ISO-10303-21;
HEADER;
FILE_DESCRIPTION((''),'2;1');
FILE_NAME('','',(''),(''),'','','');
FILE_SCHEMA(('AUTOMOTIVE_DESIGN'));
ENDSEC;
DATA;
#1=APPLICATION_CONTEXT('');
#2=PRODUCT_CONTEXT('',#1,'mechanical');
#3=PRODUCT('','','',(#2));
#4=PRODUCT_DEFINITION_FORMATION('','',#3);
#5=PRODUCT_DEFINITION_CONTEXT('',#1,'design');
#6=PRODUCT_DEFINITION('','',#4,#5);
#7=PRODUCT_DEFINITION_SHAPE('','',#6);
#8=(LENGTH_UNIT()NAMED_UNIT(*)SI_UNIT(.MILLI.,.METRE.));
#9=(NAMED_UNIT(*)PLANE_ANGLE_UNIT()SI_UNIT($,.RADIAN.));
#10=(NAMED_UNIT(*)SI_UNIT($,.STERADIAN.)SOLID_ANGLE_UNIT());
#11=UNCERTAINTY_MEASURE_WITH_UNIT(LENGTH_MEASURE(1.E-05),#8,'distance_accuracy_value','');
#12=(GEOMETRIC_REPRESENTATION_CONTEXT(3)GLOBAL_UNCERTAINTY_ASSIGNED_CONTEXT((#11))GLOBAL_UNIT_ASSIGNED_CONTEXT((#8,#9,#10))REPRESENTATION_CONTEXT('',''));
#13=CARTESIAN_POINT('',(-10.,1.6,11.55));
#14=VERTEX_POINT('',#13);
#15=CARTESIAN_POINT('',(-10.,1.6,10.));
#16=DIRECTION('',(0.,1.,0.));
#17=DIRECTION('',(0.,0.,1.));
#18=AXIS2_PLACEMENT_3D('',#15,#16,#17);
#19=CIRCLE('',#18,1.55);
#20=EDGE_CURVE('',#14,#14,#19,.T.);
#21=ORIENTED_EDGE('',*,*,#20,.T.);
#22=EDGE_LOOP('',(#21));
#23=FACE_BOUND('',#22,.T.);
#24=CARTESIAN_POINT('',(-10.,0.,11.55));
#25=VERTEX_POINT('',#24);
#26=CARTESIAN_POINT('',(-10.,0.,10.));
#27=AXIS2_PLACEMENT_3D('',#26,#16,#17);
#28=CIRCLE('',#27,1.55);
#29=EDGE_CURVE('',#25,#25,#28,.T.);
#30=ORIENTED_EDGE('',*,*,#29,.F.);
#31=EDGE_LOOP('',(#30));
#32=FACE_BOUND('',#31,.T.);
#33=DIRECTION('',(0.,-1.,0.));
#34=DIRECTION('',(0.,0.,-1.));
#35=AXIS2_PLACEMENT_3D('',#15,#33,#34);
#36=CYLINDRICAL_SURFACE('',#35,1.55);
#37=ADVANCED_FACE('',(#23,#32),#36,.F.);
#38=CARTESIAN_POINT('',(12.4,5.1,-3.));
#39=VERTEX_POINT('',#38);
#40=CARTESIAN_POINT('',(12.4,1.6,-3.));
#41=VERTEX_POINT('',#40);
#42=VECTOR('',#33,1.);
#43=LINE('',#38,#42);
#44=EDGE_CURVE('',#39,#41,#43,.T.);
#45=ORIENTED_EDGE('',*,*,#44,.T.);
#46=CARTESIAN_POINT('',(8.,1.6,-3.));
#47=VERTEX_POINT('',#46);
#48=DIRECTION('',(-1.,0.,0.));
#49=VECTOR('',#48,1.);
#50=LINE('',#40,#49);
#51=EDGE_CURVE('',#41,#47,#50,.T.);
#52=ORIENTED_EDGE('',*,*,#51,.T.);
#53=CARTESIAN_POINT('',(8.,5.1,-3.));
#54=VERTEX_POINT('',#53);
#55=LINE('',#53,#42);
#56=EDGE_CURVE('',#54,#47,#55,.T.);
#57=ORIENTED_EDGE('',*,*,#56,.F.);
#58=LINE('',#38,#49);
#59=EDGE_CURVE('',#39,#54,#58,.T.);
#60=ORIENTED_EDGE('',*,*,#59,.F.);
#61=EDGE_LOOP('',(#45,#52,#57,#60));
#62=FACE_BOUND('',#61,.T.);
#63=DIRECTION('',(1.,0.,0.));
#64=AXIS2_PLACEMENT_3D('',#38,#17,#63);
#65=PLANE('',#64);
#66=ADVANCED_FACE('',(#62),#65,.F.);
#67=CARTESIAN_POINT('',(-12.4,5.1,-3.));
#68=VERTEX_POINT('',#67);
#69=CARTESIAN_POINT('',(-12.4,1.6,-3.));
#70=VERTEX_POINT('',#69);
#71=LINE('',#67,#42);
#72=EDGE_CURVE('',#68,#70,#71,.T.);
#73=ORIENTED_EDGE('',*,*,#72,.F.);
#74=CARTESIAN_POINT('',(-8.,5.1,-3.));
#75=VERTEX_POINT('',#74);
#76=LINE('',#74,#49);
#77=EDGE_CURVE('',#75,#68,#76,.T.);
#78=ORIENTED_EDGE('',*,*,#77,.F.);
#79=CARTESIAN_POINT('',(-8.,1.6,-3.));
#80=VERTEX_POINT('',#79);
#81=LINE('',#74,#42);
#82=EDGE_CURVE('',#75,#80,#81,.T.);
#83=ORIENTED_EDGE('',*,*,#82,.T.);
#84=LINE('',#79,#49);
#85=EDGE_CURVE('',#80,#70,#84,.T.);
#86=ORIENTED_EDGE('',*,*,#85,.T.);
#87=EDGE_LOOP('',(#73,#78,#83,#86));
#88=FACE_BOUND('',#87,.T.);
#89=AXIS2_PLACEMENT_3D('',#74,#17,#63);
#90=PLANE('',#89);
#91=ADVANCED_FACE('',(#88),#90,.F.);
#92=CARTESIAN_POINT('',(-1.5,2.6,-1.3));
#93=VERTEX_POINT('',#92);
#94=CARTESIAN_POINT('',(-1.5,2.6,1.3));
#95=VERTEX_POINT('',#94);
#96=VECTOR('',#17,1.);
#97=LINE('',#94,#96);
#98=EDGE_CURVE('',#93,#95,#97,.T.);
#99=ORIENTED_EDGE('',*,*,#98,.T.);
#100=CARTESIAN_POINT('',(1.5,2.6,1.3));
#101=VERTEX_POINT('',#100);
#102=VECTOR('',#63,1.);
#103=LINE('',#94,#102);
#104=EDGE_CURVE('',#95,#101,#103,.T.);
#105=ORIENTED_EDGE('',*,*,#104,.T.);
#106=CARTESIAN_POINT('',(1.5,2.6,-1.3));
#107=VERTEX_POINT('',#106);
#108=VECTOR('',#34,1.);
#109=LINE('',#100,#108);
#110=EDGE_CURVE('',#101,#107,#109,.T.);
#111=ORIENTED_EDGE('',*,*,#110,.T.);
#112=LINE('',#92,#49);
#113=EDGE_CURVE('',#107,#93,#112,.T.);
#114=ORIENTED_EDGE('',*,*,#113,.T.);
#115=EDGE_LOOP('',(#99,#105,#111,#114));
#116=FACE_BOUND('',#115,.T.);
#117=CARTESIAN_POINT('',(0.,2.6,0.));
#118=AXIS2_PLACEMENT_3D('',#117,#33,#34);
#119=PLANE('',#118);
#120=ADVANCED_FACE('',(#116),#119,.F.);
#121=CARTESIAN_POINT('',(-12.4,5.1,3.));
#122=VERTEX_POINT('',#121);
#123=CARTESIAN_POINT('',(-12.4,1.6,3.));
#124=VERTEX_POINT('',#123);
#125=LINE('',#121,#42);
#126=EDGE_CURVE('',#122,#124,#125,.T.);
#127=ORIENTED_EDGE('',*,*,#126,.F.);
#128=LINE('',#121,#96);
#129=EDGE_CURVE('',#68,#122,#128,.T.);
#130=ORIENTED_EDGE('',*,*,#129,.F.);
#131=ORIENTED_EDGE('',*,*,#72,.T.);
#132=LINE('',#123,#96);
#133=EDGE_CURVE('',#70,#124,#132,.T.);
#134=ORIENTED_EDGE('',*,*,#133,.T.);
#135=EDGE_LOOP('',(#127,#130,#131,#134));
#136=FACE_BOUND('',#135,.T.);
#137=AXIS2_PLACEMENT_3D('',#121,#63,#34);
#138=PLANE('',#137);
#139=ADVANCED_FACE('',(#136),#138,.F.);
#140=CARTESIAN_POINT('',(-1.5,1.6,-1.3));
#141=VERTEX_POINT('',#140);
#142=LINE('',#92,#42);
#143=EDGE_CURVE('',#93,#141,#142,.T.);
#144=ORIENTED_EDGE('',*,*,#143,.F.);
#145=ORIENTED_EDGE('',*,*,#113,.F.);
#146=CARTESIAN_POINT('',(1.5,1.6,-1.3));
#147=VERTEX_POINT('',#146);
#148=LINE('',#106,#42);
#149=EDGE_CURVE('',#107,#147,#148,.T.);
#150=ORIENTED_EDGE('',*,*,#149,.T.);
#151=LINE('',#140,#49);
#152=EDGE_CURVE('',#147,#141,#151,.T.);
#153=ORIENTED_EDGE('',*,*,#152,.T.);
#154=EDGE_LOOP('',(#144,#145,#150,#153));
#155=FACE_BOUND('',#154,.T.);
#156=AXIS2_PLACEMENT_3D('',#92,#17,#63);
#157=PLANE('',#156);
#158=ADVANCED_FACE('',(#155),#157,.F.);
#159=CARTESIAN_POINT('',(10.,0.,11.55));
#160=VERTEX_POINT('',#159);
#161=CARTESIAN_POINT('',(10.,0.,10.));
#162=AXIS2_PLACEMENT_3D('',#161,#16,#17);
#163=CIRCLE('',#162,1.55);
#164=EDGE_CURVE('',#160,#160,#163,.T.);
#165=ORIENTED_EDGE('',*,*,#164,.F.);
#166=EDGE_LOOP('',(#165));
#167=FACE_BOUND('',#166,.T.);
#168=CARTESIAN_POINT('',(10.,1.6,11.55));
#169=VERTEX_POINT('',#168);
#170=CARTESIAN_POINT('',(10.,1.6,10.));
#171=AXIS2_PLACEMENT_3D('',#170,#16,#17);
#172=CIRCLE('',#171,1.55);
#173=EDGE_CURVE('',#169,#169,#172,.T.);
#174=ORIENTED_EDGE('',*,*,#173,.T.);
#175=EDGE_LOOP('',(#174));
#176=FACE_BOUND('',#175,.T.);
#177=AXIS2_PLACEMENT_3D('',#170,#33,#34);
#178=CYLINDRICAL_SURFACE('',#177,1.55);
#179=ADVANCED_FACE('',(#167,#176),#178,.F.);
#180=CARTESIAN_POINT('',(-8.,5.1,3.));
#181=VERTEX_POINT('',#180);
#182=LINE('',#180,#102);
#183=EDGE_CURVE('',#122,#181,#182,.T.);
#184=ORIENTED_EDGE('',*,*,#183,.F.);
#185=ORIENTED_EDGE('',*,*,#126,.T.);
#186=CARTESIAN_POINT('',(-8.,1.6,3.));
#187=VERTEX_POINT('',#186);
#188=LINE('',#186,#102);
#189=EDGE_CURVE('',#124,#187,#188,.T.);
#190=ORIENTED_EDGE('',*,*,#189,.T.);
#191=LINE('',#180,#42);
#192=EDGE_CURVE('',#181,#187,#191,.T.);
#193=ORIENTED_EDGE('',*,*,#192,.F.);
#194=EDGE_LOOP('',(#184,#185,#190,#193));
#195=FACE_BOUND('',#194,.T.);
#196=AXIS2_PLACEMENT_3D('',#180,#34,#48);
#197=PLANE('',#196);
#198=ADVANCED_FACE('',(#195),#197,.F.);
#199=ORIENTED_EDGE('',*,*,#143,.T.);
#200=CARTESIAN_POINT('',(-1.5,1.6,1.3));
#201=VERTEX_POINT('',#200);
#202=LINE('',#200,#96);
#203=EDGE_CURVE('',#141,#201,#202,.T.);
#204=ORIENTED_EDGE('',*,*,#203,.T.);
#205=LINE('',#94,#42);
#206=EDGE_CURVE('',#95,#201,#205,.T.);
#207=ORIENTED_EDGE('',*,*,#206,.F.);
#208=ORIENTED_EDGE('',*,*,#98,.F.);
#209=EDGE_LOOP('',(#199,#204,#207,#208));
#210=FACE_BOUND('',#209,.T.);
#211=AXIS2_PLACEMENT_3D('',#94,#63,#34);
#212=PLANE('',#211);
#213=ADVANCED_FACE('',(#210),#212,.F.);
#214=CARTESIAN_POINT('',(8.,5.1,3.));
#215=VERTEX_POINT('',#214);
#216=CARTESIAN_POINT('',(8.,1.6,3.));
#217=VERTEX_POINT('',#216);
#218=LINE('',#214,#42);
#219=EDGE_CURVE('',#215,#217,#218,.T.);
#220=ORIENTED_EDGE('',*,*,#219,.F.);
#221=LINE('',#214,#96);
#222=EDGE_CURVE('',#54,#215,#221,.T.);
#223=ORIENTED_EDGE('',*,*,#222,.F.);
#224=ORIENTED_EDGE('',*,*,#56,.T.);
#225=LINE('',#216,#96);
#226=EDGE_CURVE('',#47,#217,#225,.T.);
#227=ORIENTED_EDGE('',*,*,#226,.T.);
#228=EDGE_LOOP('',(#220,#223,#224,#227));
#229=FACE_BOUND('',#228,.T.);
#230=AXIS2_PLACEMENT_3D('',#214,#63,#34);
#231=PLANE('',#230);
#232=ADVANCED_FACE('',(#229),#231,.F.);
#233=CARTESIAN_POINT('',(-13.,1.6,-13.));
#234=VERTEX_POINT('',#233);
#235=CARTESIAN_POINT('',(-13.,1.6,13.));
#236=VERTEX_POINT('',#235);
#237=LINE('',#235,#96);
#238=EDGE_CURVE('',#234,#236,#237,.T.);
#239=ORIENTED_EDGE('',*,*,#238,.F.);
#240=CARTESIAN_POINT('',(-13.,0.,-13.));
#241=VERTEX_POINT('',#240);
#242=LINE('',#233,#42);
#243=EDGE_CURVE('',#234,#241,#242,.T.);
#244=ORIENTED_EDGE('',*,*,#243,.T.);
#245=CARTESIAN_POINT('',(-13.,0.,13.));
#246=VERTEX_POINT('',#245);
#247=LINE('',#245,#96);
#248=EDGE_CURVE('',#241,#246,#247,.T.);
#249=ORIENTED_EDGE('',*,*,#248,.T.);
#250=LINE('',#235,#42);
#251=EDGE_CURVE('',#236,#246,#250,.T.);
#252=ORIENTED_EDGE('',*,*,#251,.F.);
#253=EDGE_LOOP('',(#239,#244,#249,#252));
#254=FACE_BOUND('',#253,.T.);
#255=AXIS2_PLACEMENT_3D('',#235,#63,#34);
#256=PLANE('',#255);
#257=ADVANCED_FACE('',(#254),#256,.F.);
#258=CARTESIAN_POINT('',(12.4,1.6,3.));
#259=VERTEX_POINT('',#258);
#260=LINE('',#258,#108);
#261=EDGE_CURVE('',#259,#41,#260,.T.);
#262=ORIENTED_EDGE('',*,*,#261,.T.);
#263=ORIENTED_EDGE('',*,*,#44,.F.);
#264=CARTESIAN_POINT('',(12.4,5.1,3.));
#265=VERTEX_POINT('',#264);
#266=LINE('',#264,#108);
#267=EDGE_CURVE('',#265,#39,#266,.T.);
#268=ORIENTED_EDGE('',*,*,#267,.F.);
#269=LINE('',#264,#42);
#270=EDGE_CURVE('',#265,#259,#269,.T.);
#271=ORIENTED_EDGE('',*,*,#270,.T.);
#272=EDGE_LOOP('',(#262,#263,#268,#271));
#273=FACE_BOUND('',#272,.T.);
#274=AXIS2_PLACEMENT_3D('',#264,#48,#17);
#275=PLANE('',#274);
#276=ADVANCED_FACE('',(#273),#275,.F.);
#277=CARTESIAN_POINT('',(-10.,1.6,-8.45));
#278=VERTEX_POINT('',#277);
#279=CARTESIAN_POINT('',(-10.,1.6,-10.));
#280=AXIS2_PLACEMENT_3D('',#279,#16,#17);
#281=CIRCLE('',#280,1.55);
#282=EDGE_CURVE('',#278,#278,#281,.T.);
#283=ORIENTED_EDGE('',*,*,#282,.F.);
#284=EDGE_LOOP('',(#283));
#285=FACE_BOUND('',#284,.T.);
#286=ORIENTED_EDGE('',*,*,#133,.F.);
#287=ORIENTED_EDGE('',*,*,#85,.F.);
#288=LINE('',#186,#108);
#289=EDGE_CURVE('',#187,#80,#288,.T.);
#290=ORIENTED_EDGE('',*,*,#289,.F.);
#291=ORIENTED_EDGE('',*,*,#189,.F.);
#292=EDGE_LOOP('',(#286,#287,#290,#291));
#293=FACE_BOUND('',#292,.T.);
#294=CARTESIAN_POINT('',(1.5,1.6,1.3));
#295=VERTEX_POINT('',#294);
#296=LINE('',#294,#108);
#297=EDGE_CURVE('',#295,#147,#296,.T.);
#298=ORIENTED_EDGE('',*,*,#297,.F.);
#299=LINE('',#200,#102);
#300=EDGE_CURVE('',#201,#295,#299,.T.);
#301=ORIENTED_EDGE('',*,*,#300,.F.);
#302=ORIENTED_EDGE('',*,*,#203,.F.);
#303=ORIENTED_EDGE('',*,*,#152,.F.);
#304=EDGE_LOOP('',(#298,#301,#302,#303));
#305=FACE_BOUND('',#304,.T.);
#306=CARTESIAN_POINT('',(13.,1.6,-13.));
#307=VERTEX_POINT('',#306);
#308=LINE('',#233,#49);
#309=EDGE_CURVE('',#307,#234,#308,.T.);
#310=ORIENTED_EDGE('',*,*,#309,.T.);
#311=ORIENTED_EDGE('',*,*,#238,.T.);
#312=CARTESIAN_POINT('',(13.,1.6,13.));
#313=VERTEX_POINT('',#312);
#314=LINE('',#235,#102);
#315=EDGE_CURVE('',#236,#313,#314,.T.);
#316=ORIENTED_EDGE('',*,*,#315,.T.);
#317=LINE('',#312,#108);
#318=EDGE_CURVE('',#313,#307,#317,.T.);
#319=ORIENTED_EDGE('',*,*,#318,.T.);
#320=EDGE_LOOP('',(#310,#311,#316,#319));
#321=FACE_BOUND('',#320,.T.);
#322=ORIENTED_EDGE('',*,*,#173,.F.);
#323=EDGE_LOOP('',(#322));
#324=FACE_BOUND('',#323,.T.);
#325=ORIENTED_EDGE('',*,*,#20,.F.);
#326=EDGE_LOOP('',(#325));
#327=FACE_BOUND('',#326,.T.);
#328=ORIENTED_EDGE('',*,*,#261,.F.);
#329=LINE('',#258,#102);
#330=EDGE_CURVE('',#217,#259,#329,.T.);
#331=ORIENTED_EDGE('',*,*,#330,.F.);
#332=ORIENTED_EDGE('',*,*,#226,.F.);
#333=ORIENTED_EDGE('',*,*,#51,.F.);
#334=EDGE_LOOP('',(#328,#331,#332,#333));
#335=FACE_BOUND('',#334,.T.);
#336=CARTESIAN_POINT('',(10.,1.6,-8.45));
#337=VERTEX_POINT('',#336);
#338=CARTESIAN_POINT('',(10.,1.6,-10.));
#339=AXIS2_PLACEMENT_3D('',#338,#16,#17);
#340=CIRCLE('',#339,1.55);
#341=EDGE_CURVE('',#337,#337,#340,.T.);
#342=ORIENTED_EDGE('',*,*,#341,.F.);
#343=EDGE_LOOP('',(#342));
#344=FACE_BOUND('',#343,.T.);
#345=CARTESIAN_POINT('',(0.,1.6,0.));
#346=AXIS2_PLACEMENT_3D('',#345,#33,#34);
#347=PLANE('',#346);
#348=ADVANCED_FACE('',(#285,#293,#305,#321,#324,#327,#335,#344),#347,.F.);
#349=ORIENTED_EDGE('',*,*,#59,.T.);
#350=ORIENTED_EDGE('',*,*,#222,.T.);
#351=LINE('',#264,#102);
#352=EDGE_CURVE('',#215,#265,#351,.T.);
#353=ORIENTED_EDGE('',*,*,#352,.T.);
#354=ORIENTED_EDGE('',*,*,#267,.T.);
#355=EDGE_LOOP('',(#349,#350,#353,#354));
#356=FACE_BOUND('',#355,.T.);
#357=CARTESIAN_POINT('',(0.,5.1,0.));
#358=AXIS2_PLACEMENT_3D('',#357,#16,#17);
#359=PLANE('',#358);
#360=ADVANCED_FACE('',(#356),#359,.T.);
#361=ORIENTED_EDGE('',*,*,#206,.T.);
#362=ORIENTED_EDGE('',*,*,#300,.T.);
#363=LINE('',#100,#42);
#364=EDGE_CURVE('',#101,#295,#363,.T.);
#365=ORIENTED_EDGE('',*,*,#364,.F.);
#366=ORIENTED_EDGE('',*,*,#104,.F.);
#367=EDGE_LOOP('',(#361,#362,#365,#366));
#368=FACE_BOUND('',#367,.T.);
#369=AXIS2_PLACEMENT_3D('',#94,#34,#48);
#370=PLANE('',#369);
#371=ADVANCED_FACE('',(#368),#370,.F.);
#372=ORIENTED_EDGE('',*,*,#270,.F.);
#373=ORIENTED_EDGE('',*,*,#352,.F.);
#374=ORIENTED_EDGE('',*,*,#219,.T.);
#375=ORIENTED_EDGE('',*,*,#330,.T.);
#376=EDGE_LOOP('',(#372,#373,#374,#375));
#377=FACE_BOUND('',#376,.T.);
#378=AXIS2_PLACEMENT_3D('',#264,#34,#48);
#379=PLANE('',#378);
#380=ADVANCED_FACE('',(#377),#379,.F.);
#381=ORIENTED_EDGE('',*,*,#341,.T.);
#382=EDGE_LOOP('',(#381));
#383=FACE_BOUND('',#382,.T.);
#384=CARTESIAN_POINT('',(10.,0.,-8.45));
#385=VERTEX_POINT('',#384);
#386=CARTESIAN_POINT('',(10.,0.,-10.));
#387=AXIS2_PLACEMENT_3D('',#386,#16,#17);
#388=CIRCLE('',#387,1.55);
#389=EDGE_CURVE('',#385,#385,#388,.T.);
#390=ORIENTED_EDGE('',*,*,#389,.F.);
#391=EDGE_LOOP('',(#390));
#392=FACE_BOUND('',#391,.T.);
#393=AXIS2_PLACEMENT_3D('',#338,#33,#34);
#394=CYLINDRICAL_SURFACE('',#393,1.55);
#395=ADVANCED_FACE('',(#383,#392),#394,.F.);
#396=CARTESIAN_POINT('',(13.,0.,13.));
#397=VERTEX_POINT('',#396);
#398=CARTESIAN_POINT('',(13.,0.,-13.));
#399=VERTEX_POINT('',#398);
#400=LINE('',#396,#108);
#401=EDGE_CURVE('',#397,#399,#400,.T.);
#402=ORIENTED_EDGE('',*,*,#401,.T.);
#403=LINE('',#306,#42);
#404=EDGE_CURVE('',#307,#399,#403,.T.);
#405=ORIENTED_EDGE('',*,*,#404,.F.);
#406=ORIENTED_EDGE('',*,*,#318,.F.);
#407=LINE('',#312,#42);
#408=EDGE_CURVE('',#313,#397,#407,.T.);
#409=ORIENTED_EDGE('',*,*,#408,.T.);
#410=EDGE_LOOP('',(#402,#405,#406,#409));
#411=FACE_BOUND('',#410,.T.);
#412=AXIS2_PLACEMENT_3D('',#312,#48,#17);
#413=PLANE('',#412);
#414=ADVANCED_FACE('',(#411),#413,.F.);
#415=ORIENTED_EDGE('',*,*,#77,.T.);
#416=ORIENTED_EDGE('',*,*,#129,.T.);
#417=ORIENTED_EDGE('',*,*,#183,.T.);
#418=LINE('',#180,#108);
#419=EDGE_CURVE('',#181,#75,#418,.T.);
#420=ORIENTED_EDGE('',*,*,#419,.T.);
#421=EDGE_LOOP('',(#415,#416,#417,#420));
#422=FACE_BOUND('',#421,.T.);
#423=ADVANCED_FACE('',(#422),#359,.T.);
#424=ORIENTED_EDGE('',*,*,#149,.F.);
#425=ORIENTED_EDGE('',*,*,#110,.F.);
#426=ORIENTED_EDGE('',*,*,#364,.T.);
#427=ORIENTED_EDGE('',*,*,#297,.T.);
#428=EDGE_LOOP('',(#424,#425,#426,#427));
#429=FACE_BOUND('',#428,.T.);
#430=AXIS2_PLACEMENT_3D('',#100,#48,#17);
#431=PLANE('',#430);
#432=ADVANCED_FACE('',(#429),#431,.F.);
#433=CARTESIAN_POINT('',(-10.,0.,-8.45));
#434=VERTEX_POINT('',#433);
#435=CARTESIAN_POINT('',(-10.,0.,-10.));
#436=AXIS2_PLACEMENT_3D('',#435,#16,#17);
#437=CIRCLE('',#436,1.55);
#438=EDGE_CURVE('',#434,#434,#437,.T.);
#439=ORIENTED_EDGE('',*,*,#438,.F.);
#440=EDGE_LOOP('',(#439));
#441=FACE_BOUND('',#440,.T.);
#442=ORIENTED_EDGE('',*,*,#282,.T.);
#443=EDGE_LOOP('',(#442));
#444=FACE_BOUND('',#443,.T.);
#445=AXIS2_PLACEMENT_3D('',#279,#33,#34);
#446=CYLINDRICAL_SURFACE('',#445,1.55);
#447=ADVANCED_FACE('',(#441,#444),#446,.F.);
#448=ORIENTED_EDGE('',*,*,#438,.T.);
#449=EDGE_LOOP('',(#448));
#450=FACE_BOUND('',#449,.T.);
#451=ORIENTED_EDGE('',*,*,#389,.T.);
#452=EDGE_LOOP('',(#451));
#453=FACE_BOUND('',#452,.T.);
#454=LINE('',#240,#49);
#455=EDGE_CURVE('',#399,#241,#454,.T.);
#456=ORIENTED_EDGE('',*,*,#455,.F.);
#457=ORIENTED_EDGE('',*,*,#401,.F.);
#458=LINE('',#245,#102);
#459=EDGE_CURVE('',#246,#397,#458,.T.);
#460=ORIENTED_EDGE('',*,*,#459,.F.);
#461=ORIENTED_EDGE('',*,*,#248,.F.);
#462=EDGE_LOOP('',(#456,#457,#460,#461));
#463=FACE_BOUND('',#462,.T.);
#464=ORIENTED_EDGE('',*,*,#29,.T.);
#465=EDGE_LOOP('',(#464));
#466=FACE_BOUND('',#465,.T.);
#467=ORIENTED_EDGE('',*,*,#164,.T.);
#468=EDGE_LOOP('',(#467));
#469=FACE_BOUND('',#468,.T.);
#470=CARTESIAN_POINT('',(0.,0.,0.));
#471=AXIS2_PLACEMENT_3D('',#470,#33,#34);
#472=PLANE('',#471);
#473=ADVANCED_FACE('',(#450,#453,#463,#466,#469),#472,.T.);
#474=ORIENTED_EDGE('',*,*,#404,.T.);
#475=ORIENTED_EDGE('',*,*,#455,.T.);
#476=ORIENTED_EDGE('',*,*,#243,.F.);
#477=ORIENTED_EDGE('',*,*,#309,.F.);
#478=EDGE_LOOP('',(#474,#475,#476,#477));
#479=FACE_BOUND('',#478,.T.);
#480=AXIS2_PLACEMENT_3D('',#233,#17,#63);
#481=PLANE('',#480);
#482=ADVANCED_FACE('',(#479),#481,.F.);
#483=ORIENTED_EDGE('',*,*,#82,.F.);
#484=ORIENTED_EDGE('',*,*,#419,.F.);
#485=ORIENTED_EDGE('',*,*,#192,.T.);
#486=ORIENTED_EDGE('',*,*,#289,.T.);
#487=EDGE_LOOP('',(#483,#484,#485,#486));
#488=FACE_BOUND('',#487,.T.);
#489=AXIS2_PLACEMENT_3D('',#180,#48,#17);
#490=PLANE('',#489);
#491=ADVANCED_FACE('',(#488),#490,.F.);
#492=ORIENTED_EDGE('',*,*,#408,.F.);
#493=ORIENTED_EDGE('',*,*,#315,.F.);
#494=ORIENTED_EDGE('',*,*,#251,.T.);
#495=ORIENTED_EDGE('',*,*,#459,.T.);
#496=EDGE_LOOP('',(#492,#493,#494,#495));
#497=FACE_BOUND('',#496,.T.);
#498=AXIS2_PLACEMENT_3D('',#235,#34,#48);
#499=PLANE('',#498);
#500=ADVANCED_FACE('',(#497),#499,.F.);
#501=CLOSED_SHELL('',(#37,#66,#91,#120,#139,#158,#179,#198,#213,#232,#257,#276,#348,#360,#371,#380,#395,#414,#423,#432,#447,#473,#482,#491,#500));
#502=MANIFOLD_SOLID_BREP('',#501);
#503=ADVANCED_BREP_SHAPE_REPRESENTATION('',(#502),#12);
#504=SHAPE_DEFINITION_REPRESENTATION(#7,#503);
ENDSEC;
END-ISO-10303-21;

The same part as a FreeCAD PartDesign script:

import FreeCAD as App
import Part
import Sketcher

V = App.Vector


def add_polygon(sketch, points):
    """Adds a closed chain of lines whose ends are joined by coincident constraints."""
    first, n = sketch.GeometryCount, len(points)
    for a, b in zip(points, points[1:] + points[:1]):
        sketch.addGeometry(Part.LineSegment(App.Vector(*a, 0), App.Vector(*b, 0)), False)
    for i in range(n):
        sketch.addConstraint(Sketcher.Constraint("Coincident", first + i, 2, first + (i + 1) % n, 1))

doc = App.newDocument("Part")
body = doc.addObject("PartDesign::Body", "Body")

# Sketch on XZ plane
sketch1 = body.newObject("Sketcher::SketchObject", "Sketch")
sketch1.AttachmentSupport = (doc.getObject("XZ_Plane"), [""])
sketch1.MapMode = "FlatFace"
add_polygon(sketch1, [(-13, -13), (-13, 13), (13, 13), (13, -13)])  # lines 0-3
sketch1.addGeometry(Part.Circle(V(-10, 10, 0), V(0, 0, 1), 1.6), False)  # 4
sketch1.addGeometry(Part.Circle(V(10, 10, 0), V(0, 0, 1), 1.6), False)  # 5
sketch1.addGeometry(Part.Circle(V(-10, -10, 0), V(0, 0, 1), 1.6), False)  # 6
sketch1.addGeometry(Part.Circle(V(10, -10, 0), V(0, 0, 1), 1.6), False)  # 7
sketch1.addConstraint([
    Sketcher.Constraint("Vertical", 0),
    Sketcher.Constraint("Horizontal", 1),
    Sketcher.Constraint("Vertical", 2),
    Sketcher.Constraint("Horizontal", 3),
    Sketcher.Constraint("Equal", 4, 5),
    Sketcher.Constraint("Equal", 5, 6),
    Sketcher.Constraint("Equal", 6, 7),
    Sketcher.Constraint("Symmetric", 5, 3, 6, 3, -1, 1),
    Sketcher.Constraint("Symmetric", 4, 3, 7, 3, -1, 1),
    Sketcher.Constraint("Symmetric", 0, 2, 2, 2, -1, 1),
    Sketcher.Constraint("Symmetric", 4, 3, 5, 3, -2),
    Sketcher.Constraint("Equal", 3, 0),
    Sketcher.Constraint("Diameter", 4, 3.1),
    Sketcher.Constraint("DistanceX", 1, 1, 1, 2, 26.0),
    Sketcher.Constraint("DistanceX", 4, 3, -1, 1, 10.0),
    Sketcher.Constraint("DistanceY", -1, 1, 4, 3, 10.0),
])
pad1 = body.newObject("PartDesign::Pad", "Pad")
pad1.Profile = sketch1
pad1.Length = 1.6
pad1.Reversed = True

# Sketch on XZ plane
sketch2 = body.newObject("Sketcher::SketchObject", "Sketch001")
sketch2.AttachmentSupport = (doc.getObject("XZ_Plane"), [""])
sketch2.MapMode = "FlatFace"
sketch2.AttachmentOffset = App.Placement(V(0, 0, -1.6), App.Rotation())
add_polygon(sketch2, [(-12.4, -3), (-12.4, 3), (-8, 3), (-8, -3)])  # lines 0-3
add_polygon(sketch2, [(8, -3), (8, 3), (12.4, 3), (12.4, -3)])  # lines 4-7
sketch2.addConstraint([
    Sketcher.Constraint("Vertical", 0),
    Sketcher.Constraint("Horizontal", 1),
    Sketcher.Constraint("Vertical", 2),
    Sketcher.Constraint("Horizontal", 3),
    Sketcher.Constraint("Vertical", 4),
    Sketcher.Constraint("Horizontal", 5),
    Sketcher.Constraint("Vertical", 6),
    Sketcher.Constraint("Horizontal", 7),
    Sketcher.Constraint("Symmetric", 2, 2, 4, 2, -1, 1),
    Sketcher.Constraint("Symmetric", 0, 2, 6, 2, -1, 1),
    Sketcher.Constraint("Horizontal", 1, 2, 4, 2),
    Sketcher.Constraint("DistanceY", 0, 1, 0, 2, 6.0),
    Sketcher.Constraint("DistanceX", 1, 1, 1, 2, 4.4),
    Sketcher.Constraint("DistanceX", 1, 2, -1, 1, 8.0),
])
pad2 = body.newObject("PartDesign::Pad", "Pad001")
pad2.Profile = sketch2
pad2.Length = 3.5
pad2.Reversed = True

# Sketch on XZ plane
sketch3 = body.newObject("Sketcher::SketchObject", "Sketch002")
sketch3.AttachmentSupport = (doc.getObject("XZ_Plane"), [""])
sketch3.MapMode = "FlatFace"
sketch3.AttachmentOffset = App.Placement(V(0, 0, -1.6), App.Rotation())
add_polygon(sketch3, [(-1.5, -1.3), (-1.5, 1.3), (1.5, 1.3), (1.5, -1.3)])  # lines 0-3
sketch3.addConstraint([
    Sketcher.Constraint("Vertical", 0),
    Sketcher.Constraint("Horizontal", 1),
    Sketcher.Constraint("Vertical", 2),
    Sketcher.Constraint("Horizontal", 3),
    Sketcher.Constraint("Symmetric", 0, 2, 2, 2, -1, 1),
    Sketcher.Constraint("DistanceX", 1, 1, 1, 2, 3.0),
    Sketcher.Constraint("DistanceY", 0, 1, 0, 2, 2.6),
])
pad3 = body.newObject("PartDesign::Pad", "Pad002")
pad3.Profile = sketch3
pad3.Length = 1
pad3.Reversed = True

doc.recompute()
